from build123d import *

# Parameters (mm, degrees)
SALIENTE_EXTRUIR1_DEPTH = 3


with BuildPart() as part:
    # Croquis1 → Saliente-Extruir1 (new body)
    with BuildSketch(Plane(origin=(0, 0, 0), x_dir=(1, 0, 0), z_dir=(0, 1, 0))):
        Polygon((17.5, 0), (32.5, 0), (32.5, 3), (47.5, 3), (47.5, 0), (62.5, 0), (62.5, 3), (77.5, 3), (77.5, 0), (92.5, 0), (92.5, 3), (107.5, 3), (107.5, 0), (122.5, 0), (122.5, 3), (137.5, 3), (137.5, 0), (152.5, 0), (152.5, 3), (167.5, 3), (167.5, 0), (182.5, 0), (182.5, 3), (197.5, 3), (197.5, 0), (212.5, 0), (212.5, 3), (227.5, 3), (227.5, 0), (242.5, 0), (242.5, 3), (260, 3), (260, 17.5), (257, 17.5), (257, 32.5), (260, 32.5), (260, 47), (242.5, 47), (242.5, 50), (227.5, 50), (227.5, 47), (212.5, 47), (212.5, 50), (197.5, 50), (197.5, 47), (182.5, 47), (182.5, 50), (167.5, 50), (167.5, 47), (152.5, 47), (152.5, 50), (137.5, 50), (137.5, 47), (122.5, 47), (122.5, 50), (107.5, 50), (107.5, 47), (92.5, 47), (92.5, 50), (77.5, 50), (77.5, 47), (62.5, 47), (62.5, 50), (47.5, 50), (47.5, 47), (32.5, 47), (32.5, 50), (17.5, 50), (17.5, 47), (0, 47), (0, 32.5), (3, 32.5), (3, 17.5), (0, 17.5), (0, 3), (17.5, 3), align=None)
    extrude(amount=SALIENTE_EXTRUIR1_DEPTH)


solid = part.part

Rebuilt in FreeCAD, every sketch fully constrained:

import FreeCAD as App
import Part
import Sketcher
Q = App.Units.Quantity


def add_polygon(sketch, points):
    """Adds a closed chain of lines whose ends are joined by coincident constraints."""
    first, n = sketch.GeometryCount, len(points)
    for a, b in zip(points, points[1:] + points[:1]):
        sketch.addGeometry(Part.LineSegment(App.Vector(*a, 0), App.Vector(*b, 0)), False)
    for i in range(n):
        sketch.addConstraint(Sketcher.Constraint("Coincident", first + i, 2, first + (i + 1) % n, 1))

doc = App.newDocument("Part")
body = doc.addObject("PartDesign::Body", "Body")

# Sketch on XZ plane
sketch1 = body.newObject("Sketcher::SketchObject", "Sketch")
sketch1.AttachmentSupport = (doc.getObject("XZ_Plane"), [""])
sketch1.MapMode = "FlatFace"
add_polygon(sketch1, [(17.5, 0), (32.5, 0), (32.5, -3), (47.5, -3), (47.5, 0), (62.5, 0), (62.5, -3), (77.5, -3), (77.5, 0), (92.5, 0), (92.5, -3), (107.5, -3), (107.5, 0), (122.5, 0), (122.5, -3), (137.5, -3), (137.5, 0), (152.5, 0), (152.5, -3), (167.5, -3), (167.5, 0), (182.5, 0), (182.5, -3), (197.5, -3), (197.5, 0), (212.5, 0), (212.5, -3), (227.5, -3), (227.5, 0), (242.5, 0), (242.5, -3), (260, -3), (260, -17.5), (257, -17.5), (257, -32.5), (260, -32.5), (260, -47), (242.5, -47), (242.5, -50), (227.5, -50), (227.5, -47), (212.5, -47), (212.5, -50), (197.5, -50), (197.5, -47), (182.5, -47), (182.5, -50), (167.5, -50), (167.5, -47), (152.5, -47), (152.5, -50), (137.5, -50), (137.5, -47), (122.5, -47), (122.5, -50), (107.5, -50), (107.5, -47), (92.5, -47), (92.5, -50), (77.5, -50), (77.5, -47), (62.5, -47), (62.5, -50), (47.5, -50), (47.5, -47), (32.5, -47), (32.5, -50), (17.5, -50), (17.5, -47), (0, -47), (0, -32.5), (3, -32.5), (3, -17.5), (0, -17.5), (0, -3), (17.5, -3)])  # lines 0-75
sketch1.addConstraint([
    Sketcher.Constraint("Horizontal", 0),
    Sketcher.Constraint("Vertical", 1),
    Sketcher.Constraint("Horizontal", 2),
    Sketcher.Constraint("Vertical", 3),
    Sketcher.Constraint("Horizontal", 4),
    Sketcher.Constraint("Vertical", 5),
    Sketcher.Constraint("Horizontal", 6),
    Sketcher.Constraint("Vertical", 7),
    Sketcher.Constraint("Horizontal", 8),
    Sketcher.Constraint("Vertical", 9),
    Sketcher.Constraint("Horizontal", 10),
    Sketcher.Constraint("Vertical", 11),
    Sketcher.Constraint("Horizontal", 12),
    Sketcher.Constraint("Vertical", 13),
    Sketcher.Constraint("Horizontal", 14),
    Sketcher.Constraint("Vertical", 15),
    Sketcher.Constraint("Horizontal", 16),
    Sketcher.Constraint("Vertical", 17),
    Sketcher.Constraint("Horizontal", 18),
    Sketcher.Constraint("Vertical", 19),
    Sketcher.Constraint("Horizontal", 20),
    Sketcher.Constraint("Vertical", 21),
    Sketcher.Constraint("Horizontal", 22),
    Sketcher.Constraint("Vertical", 23),
    Sketcher.Constraint("Horizontal", 24),
    Sketcher.Constraint("Vertical", 25),
    Sketcher.Constraint("Horizontal", 26),
    Sketcher.Constraint("Vertical", 27),
    Sketcher.Constraint("Horizontal", 28),
    Sketcher.Constraint("Vertical", 29),
    Sketcher.Constraint("Horizontal", 30),
    Sketcher.Constraint("Vertical", 31),
    Sketcher.Constraint("Horizontal", 32),
    Sketcher.Constraint("Vertical", 33),
    Sketcher.Constraint("Horizontal", 34),
    Sketcher.Constraint("Vertical", 35),
    Sketcher.Constraint("Horizontal", 36),
    Sketcher.Constraint("Vertical", 37),
    Sketcher.Constraint("Horizontal", 38),
    Sketcher.Constraint("Vertical", 39),
    Sketcher.Constraint("Horizontal", 40),
    Sketcher.Constraint("Vertical", 41),
    Sketcher.Constraint("Horizontal", 42),
    Sketcher.Constraint("Vertical", 43),
    Sketcher.Constraint("Horizontal", 44),
    Sketcher.Constraint("Vertical", 45),
    Sketcher.Constraint("Horizontal", 46),
    Sketcher.Constraint("Vertical", 47),
    Sketcher.Constraint("Horizontal", 48),
    Sketcher.Constraint("Vertical", 49),
    Sketcher.Constraint("Horizontal", 50),
    Sketcher.Constraint("Vertical", 51),
    Sketcher.Constraint("Horizontal", 52),
    Sketcher.Constraint("Vertical", 53),
    Sketcher.Constraint("Horizontal", 54),
    Sketcher.Constraint("Vertical", 55),
    Sketcher.Constraint("Horizontal", 56),
    Sketcher.Constraint("Vertical", 57),
    Sketcher.Constraint("Horizontal", 58),
    Sketcher.Constraint("Vertical", 59),
    Sketcher.Constraint("Horizontal", 60),
    Sketcher.Constraint("Vertical", 61),
    Sketcher.Constraint("Horizontal", 62),
    Sketcher.Constraint("Vertical", 63),
    Sketcher.Constraint("Horizontal", 64),
    Sketcher.Constraint("Vertical", 65),
    Sketcher.Constraint("Horizontal", 66),
    Sketcher.Constraint("Vertical", 67),
    Sketcher.Constraint("Horizontal", 68),
    Sketcher.Constraint("Vertical", 69),
    Sketcher.Constraint("Horizontal", 70),
    Sketcher.Constraint("Vertical", 71),
    Sketcher.Constraint("Horizontal", 72),
    Sketcher.Constraint("Vertical", 73),
    Sketcher.Constraint("Horizontal", 74),
    Sketcher.Constraint("Vertical", 75),
    Sketcher.Constraint("PointOnObject", 0, 2, -1),
    Sketcher.Constraint("PointOnObject", 3, 2, -1),
    Sketcher.Constraint("PointOnObject", 7, 2, -1),
    Sketcher.Constraint("PointOnObject", 11, 2, -1),
    Sketcher.Constraint("PointOnObject", 15, 2, -1),
    Sketcher.Constraint("PointOnObject", 19, 2, -1),
    Sketcher.Constraint("PointOnObject", 23, 2, -1),
    Sketcher.Constraint("PointOnObject", 27, 2, -1),
    Sketcher.Constraint("PointOnObject", 68, 2, -2),
    Sketcher.Constraint("PointOnObject", 72, 2, -2),
    Sketcher.Constraint("Horizontal", 2, 2, 5, 2),
    Sketcher.Constraint("Horizontal", 6, 2, 9, 2),
    Sketcher.Constraint("Horizontal", 10, 2, 13, 2),
    Sketcher.Constraint("Horizontal", 14, 2, 17, 2),
    Sketcher.Constraint("Horizontal", 18, 2, 21, 2),
    Sketcher.Constraint("Horizontal", 22, 2, 25, 2),
    Sketcher.Constraint("Horizontal", 26, 2, 29, 2),
    Sketcher.Constraint("Horizontal", 36, 2, 39, 2),
    Sketcher.Constraint("Horizontal", 38, 2, 41, 2),
    Sketcher.Constraint("Horizontal", 40, 2, 43, 2),
    Sketcher.Constraint("Horizontal", 42, 2, 45, 2),
    Sketcher.Constraint("Horizontal", 44, 2, 47, 2),
    Sketcher.Constraint("Horizontal", 46, 2, 49, 2),
    Sketcher.Constraint("Horizontal", 48, 2, 51, 2),
    Sketcher.Constraint("Horizontal", 50, 2, 53, 2),
    Sketcher.Constraint("Horizontal", 52, 2, 55, 2),
    Sketcher.Constraint("Horizontal", 54, 2, 57, 2),
    Sketcher.Constraint("Horizontal", 56, 2, 59, 2),
    Sketcher.Constraint("Horizontal", 58, 2, 61, 2),
    Sketcher.Constraint("Horizontal", 60, 2, 63, 2),
    Sketcher.Constraint("Horizontal", 62, 2, 65, 2),
    Sketcher.Constraint("Horizontal", 64, 2, 67, 2),
    Sketcher.Constraint("Horizontal", 34, 2, 69, 2),
    Sketcher.Constraint("Horizontal", 32, 2, 71, 2),
    Sketcher.Constraint("Horizontal", 30, 2, 73, 2),
    Sketcher.Constraint("Vertical", 31, 2, 34, 2),
    Sketcher.Constraint("Vertical", 29, 2, 36, 2),
    Sketcher.Constraint("Vertical", 27, 2, 38, 2),
    Sketcher.Constraint("Vertical", 25, 2, 40, 2),
    Sketcher.Constraint("Vertical", 23, 2, 42, 2),
    Sketcher.Constraint("Vertical", 21, 2, 44, 2),
    Sketcher.Constraint("Vertical", 19, 2, 46, 2),
    Sketcher.Constraint("Vertical", 17, 2, 48, 2),
    Sketcher.Constraint("Vertical", 15, 2, 50, 2),
    Sketcher.Constraint("Vertical", 13, 2, 52, 2),
    Sketcher.Constraint("Vertical", 11, 2, 54, 2),
    Sketcher.Constraint("Vertical", 9, 2, 56, 2),
    Sketcher.Constraint("Vertical", 7, 2, 58, 2),
    Sketcher.Constraint("Vertical", 5, 2, 60, 2),
    Sketcher.Constraint("Vertical", 3, 2, 62, 2),
    Sketcher.Constraint("Vertical", 1, 2, 64, 2),
    Sketcher.Constraint("Vertical", 67, 2, 74, 2),
    Sketcher.Constraint("Equal", 0, 2),
    Sketcher.Constraint("Equal", 2, 4),
    Sketcher.Constraint("Equal", 4, 6),
    Sketcher.Constraint("Equal", 6, 8),
    Sketcher.Constraint("Equal", 8, 10),
    Sketcher.Constraint("Equal", 10, 12),
    Sketcher.Constraint("Equal", 12, 14),
    Sketcher.Constraint("Equal", 14, 16),
    Sketcher.Constraint("Equal", 16, 18),
    Sketcher.Constraint("Equal", 18, 20),
    Sketcher.Constraint("Equal", 20, 22),
    Sketcher.Constraint("Equal", 22, 24),
    Sketcher.Constraint("Equal", 24, 26),
    Sketcher.Constraint("Equal", 26, 28),
    Sketcher.Constraint("Equal", 36, 68),
    Sketcher.Constraint("Equal", 34, 70),
    Sketcher.Constraint("Equal", 72, 1),
    Sketcher.Constraint("Equal", 66, 33),
    Sketcher.Constraint("Equal", 31, 35),
    Sketcher.Constraint("Equal", 29, 37),
    Sketcher.Constraint("DistanceX", 0, 1, 0, 2, Q("15 mm")),
    Sketcher.Constraint("DistanceX", 32, 2, 32, 1, Q("3 mm")),
    Sketcher.Constraint("DistanceX", 30, 1, 30, 2, Q("17.5 mm")),
    Sketcher.Constraint("DistanceY", 31, 2, 31, 1, Q("14.5 mm")),
])
pad1 = body.newObject("PartDesign::Pad", "Pad")
pad1.Profile = sketch1
pad1.Length = 3
pad1.Reversed = True

doc.recompute()
